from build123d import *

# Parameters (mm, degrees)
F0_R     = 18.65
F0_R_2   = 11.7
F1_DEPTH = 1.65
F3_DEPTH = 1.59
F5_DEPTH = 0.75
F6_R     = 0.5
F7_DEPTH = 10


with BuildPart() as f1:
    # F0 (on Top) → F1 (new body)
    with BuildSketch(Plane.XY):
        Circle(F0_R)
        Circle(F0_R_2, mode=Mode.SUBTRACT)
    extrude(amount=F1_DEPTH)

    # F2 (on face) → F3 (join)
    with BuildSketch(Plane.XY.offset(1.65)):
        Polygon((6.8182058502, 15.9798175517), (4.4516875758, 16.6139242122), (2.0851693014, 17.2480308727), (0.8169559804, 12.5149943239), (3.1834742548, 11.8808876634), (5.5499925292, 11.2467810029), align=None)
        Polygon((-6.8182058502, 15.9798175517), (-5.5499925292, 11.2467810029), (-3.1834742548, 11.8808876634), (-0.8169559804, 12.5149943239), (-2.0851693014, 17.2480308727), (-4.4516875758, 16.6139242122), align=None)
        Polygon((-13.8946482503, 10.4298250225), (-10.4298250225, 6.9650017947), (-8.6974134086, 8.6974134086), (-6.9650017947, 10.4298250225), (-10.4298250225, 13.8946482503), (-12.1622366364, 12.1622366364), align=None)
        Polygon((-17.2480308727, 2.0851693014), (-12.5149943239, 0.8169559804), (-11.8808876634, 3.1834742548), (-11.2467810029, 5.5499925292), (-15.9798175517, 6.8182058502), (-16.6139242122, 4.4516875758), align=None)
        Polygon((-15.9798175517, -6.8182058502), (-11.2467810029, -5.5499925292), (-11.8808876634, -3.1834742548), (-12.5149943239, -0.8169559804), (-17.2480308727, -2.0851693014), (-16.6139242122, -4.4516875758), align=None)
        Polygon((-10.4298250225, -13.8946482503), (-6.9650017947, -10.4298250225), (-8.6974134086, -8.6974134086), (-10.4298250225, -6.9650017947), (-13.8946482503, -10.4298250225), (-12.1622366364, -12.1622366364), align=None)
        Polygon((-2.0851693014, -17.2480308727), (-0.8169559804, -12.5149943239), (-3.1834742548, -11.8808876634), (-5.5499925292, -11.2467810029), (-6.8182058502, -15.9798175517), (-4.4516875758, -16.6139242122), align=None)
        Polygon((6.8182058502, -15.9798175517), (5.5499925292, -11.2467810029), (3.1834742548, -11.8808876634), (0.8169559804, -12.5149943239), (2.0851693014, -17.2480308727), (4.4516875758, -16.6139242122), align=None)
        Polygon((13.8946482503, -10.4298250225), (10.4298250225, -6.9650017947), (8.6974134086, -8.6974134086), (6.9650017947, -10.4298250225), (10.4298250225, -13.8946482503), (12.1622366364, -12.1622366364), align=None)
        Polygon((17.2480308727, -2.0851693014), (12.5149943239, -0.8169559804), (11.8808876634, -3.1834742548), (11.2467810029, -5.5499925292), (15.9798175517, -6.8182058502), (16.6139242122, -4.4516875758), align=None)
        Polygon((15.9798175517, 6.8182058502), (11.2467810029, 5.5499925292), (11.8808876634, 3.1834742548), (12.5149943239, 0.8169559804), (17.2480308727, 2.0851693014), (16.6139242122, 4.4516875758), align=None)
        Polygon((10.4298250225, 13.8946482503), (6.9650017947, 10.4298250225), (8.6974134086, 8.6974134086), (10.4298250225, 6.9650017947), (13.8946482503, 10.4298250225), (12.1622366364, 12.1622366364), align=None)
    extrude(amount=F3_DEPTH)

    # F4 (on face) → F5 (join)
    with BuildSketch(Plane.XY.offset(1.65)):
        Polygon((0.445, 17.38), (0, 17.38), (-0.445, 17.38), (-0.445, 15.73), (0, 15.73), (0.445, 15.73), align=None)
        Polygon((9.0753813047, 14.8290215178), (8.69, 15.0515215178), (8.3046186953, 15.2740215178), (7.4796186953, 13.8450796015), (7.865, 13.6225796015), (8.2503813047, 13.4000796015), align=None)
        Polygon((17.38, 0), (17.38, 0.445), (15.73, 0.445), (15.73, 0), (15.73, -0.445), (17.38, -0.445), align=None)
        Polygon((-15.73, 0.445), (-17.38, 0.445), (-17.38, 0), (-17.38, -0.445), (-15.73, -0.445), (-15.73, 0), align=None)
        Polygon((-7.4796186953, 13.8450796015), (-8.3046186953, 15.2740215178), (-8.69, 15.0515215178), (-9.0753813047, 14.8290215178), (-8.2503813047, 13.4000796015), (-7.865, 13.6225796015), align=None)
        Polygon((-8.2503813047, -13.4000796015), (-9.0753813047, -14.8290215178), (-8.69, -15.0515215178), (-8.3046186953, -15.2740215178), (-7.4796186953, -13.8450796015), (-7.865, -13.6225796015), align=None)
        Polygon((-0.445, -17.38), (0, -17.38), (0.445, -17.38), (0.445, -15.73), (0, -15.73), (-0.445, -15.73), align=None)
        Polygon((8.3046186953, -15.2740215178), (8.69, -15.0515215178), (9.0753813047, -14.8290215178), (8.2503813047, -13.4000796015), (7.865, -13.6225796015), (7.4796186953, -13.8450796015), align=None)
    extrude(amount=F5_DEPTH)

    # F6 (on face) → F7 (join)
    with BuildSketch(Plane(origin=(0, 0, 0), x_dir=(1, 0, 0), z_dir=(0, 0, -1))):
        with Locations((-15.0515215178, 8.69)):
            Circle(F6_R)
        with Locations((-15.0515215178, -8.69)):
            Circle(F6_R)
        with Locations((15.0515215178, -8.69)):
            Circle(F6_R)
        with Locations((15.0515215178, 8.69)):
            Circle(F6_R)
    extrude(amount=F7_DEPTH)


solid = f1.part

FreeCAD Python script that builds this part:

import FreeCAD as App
import Part
import Sketcher

V = App.Vector
Q = App.Units.Quantity

doc = App.newDocument("Part")
body = doc.addObject("PartDesign::Body", "Body")

# Sketch on XY plane
sketch1 = body.newObject("Sketcher::SketchObject", "Sketch")
sketch1.AttachmentSupport = (doc.getObject("XY_Plane"), [""])
sketch1.MapMode = "FlatFace"
sketch1.addGeometry([
    Part.Circle(V(0, 0, 0), V(0, 0, 1), 18.65),
    Part.Circle(V(0, 0, 0), V(0, 0, 1), 11.7),
], False)
sketch1.addConstraint([
    Sketcher.Constraint("Coincident", 0, 3, -1, 1),
    Sketcher.Constraint("Coincident", 1, 3, -1, 1),
    Sketcher.Constraint("Diameter", 0, 37.3),
    Sketcher.Constraint("Diameter", 1, 23.4),
])
pad1 = body.newObject("PartDesign::Pad", "Pad")
pad1.Profile = sketch1
pad1.Length = 1.65

# Sketch on XY plane
sketch2 = body.newObject("Sketcher::SketchObject", "Sketch001")
sketch2.AttachmentSupport = (doc.getObject("XY_Plane"), [""])
sketch2.MapMode = "FlatFace"
sketch2.AttachmentOffset = App.Placement(V(0, 0, 1.65), App.Rotation())
sketch2.addGeometry([
    Part.LineSegment(V(6.818206, 15.979818, 0), V(2.085169, 17.248031, 0)),  # 0
    Part.LineSegment(V(2.085169, 17.248031, 0), V(0.816956, 12.514994, 0)),  # 1
    Part.LineSegment(V(0.816956, 12.514994, 0), V(5.549993, 11.246781, 0)),  # 2
    Part.LineSegment(V(5.549993, 11.246781, 0), V(6.818206, 15.979818, 0)),  # 3
    Part.LineSegment(V(-6.818206, 15.979818, 0), V(-5.549993, 11.246781, 0)),  # 4
    Part.LineSegment(V(-5.549993, 11.246781, 0), V(-0.816956, 12.514994, 0)),  # 5
    Part.LineSegment(V(-0.816956, 12.514994, 0), V(-2.085169, 17.248031, 0)),  # 6
    Part.LineSegment(V(-2.085169, 17.248031, 0), V(-6.818206, 15.979818, 0)),  # 7
    Part.LineSegment(V(-13.894648, 10.429825, 0), V(-10.429825, 6.965002, 0)),  # 8
    Part.LineSegment(V(-10.429825, 6.965002, 0), V(-6.965002, 10.429825, 0)),  # 9
    Part.LineSegment(V(-6.965002, 10.429825, 0), V(-10.429825, 13.894648, 0)),  # 10
    Part.LineSegment(V(-10.429825, 13.894648, 0), V(-13.894648, 10.429825, 0)),  # 11
    Part.LineSegment(V(-17.248031, 2.085169, 0), V(-12.514994, 0.816956, 0)),  # 12
    Part.LineSegment(V(-12.514994, 0.816956, 0), V(-11.246781, 5.549993, 0)),  # 13
    Part.LineSegment(V(-11.246781, 5.549993, 0), V(-15.979818, 6.818206, 0)),  # 14
    Part.LineSegment(V(-15.979818, 6.818206, 0), V(-17.248031, 2.085169, 0)),  # 15
    Part.LineSegment(V(-15.979818, -6.818206, 0), V(-11.246781, -5.549993, 0)),  # 16
    Part.LineSegment(V(-11.246781, -5.549993, 0), V(-12.514994, -0.816956, 0)),  # 17
    Part.LineSegment(V(-12.514994, -0.816956, 0), V(-17.248031, -2.085169, 0)),  # 18
    Part.LineSegment(V(-17.248031, -2.085169, 0), V(-15.979818, -6.818206, 0)),  # 19
    Part.LineSegment(V(-10.429825, -13.894648, 0), V(-6.965002, -10.429825, 0)),  # 20
    Part.LineSegment(V(-6.965002, -10.429825, 0), V(-10.429825, -6.965002, 0)),  # 21
    Part.LineSegment(V(-10.429825, -6.965002, 0), V(-13.894648, -10.429825, 0)),  # 22
    Part.LineSegment(V(-13.894648, -10.429825, 0), V(-10.429825, -13.894648, 0)),  # 23
    Part.LineSegment(V(-2.085169, -17.248031, 0), V(-0.816956, -12.514994, 0)),  # 24
    Part.LineSegment(V(-0.816956, -12.514994, 0), V(-5.549993, -11.246781, 0)),  # 25
    Part.LineSegment(V(-5.549993, -11.246781, 0), V(-6.818206, -15.979818, 0)),  # 26
    Part.LineSegment(V(-6.818206, -15.979818, 0), V(-2.085169, -17.248031, 0)),  # 27
    Part.LineSegment(V(6.818206, -15.979818, 0), V(5.549993, -11.246781, 0)),  # 28
    Part.LineSegment(V(5.549993, -11.246781, 0), V(0.816956, -12.514994, 0)),  # 29
    Part.LineSegment(V(0.816956, -12.514994, 0), V(2.085169, -17.248031, 0)),  # 30
    Part.LineSegment(V(2.085169, -17.248031, 0), V(6.818206, -15.979818, 0)),  # 31
    Part.LineSegment(V(13.894648, -10.429825, 0), V(10.429825, -6.965002, 0)),  # 32
    Part.LineSegment(V(10.429825, -6.965002, 0), V(6.965002, -10.429825, 0)),  # 33
    Part.LineSegment(V(6.965002, -10.429825, 0), V(10.429825, -13.894648, 0)),  # 34
    Part.LineSegment(V(10.429825, -13.894648, 0), V(13.894648, -10.429825, 0)),  # 35
    Part.LineSegment(V(17.248031, -2.085169, 0), V(12.514994, -0.816956, 0)),  # 36
    Part.LineSegment(V(12.514994, -0.816956, 0), V(11.246781, -5.549993, 0)),  # 37
    Part.LineSegment(V(11.246781, -5.549993, 0), V(15.979818, -6.818206, 0)),  # 38
    Part.LineSegment(V(15.979818, -6.818206, 0), V(17.248031, -2.085169, 0)),  # 39
    Part.LineSegment(V(15.979818, 6.818206, 0), V(11.246781, 5.549993, 0)),  # 40
    Part.LineSegment(V(11.246781, 5.549993, 0), V(12.514994, 0.816956, 0)),  # 41
    Part.LineSegment(V(12.514994, 0.816956, 0), V(17.248031, 2.085169, 0)),  # 42
    Part.LineSegment(V(17.248031, 2.085169, 0), V(15.979818, 6.818206, 0)),  # 43
    Part.LineSegment(V(10.429825, 13.894648, 0), V(6.965002, 10.429825, 0)),  # 44
    Part.LineSegment(V(6.965002, 10.429825, 0), V(10.429825, 6.965002, 0)),  # 45
    Part.LineSegment(V(10.429825, 6.965002, 0), V(13.894648, 10.429825, 0)),  # 46
    Part.LineSegment(V(13.894648, 10.429825, 0), V(10.429825, 13.894648, 0)),  # 47
], False)
sketch2.addConstraint([
    Sketcher.Constraint("Coincident", 0, 2, 1, 1),
    Sketcher.Constraint("Coincident", 1, 2, 2, 1),
    Sketcher.Constraint("Coincident", 2, 2, 3, 1),
    Sketcher.Constraint("Coincident", 3, 2, 0, 1),
    Sketcher.Constraint("Coincident", 4, 2, 5, 1),
    Sketcher.Constraint("Coincident", 5, 2, 6, 1),
    Sketcher.Constraint("Coincident", 6, 2, 7, 1),
    Sketcher.Constraint("Coincident", 7, 2, 4, 1),
    Sketcher.Constraint("Coincident", 8, 2, 9, 1),
    Sketcher.Constraint("Coincident", 9, 2, 10, 1),
    Sketcher.Constraint("Coincident", 10, 2, 11, 1),
    Sketcher.Constraint("Coincident", 11, 2, 8, 1),
    Sketcher.Constraint("Coincident", 12, 2, 13, 1),
    Sketcher.Constraint("Coincident", 13, 2, 14, 1),
    Sketcher.Constraint("Coincident", 14, 2, 15, 1),
    Sketcher.Constraint("Coincident", 15, 2, 12, 1),
    Sketcher.Constraint("Coincident", 16, 2, 17, 1),
    Sketcher.Constraint("Coincident", 17, 2, 18, 1),
    Sketcher.Constraint("Coincident", 18, 2, 19, 1),
    Sketcher.Constraint("Coincident", 19, 2, 16, 1),
    Sketcher.Constraint("Coincident", 20, 2, 21, 1),
    Sketcher.Constraint("Coincident", 21, 2, 22, 1),
    Sketcher.Constraint("Coincident", 22, 2, 23, 1),
    Sketcher.Constraint("Coincident", 23, 2, 20, 1),
    Sketcher.Constraint("Coincident", 24, 2, 25, 1),
    Sketcher.Constraint("Coincident", 25, 2, 26, 1),
    Sketcher.Constraint("Coincident", 26, 2, 27, 1),
    Sketcher.Constraint("Coincident", 27, 2, 24, 1),
    Sketcher.Constraint("Coincident", 28, 2, 29, 1),
    Sketcher.Constraint("Coincident", 29, 2, 30, 1),
    Sketcher.Constraint("Coincident", 30, 2, 31, 1),
    Sketcher.Constraint("Coincident", 31, 2, 28, 1),
    Sketcher.Constraint("Coincident", 32, 2, 33, 1),
    Sketcher.Constraint("Coincident", 33, 2, 34, 1),
    Sketcher.Constraint("Coincident", 34, 2, 35, 1),
    Sketcher.Constraint("Coincident", 35, 2, 32, 1),
    Sketcher.Constraint("Coincident", 36, 2, 37, 1),
    Sketcher.Constraint("Coincident", 37, 2, 38, 1),
    Sketcher.Constraint("Coincident", 38, 2, 39, 1),
    Sketcher.Constraint("Coincident", 39, 2, 36, 1),
    Sketcher.Constraint("Coincident", 40, 2, 41, 1),
    Sketcher.Constraint("Coincident", 41, 2, 42, 1),
    Sketcher.Constraint("Coincident", 42, 2, 43, 1),
    Sketcher.Constraint("Coincident", 43, 2, 40, 1),
    Sketcher.Constraint("Coincident", 44, 2, 45, 1),
    Sketcher.Constraint("Coincident", 45, 2, 46, 1),
    Sketcher.Constraint("Coincident", 46, 2, 47, 1),
    Sketcher.Constraint("Coincident", 47, 2, 44, 1),
    Sketcher.Constraint("Symmetric", 1, 2, 24, 2, -1, 1),
    Sketcher.Constraint("Symmetric", 2, 2, 25, 2, -1, 1),
    Sketcher.Constraint("Symmetric", 3, 2, 26, 2, -1, 1),
    Sketcher.Constraint("Symmetric", 0, 2, 27, 2, -1, 1),
    Sketcher.Constraint("Symmetric", 4, 2, 28, 2, -1, 1),
    Sketcher.Constraint("Symmetric", 5, 2, 29, 2, -1, 1),
    Sketcher.Constraint("Symmetric", 6, 2, 30, 2, -1, 1),
    Sketcher.Constraint("Symmetric", 7, 2, 31, 2, -1, 1),
    Sketcher.Constraint("Symmetric", 8, 2, 32, 2, -1, 1),
    Sketcher.Constraint("Symmetric", 9, 2, 33, 2, -1, 1),
    Sketcher.Constraint("Symmetric", 10, 2, 34, 2, -1, 1),
    Sketcher.Constraint("Symmetric", 11, 2, 35, 2, -1, 1),
    Sketcher.Constraint("Symmetric", 12, 2, 36, 2, -1, 1),
    Sketcher.Constraint("Symmetric", 13, 2, 37, 2, -1, 1),
    Sketcher.Constraint("Symmetric", 14, 2, 38, 2, -1, 1),
    Sketcher.Constraint("Symmetric", 15, 2, 39, 2, -1, 1),
    Sketcher.Constraint("Symmetric", 16, 2, 40, 2, -1, 1),
    Sketcher.Constraint("Symmetric", 17, 2, 41, 2, -1, 1),
    Sketcher.Constraint("Symmetric", 18, 2, 42, 2, -1, 1),
    Sketcher.Constraint("Symmetric", 19, 2, 43, 2, -1, 1),
    Sketcher.Constraint("Symmetric", 20, 2, 44, 2, -1, 1),
    Sketcher.Constraint("Symmetric", 21, 2, 45, 2, -1, 1),
    Sketcher.Constraint("Symmetric", 22, 2, 46, 2, -1, 1),
    Sketcher.Constraint("Symmetric", 23, 2, 47, 2, -1, 1),
    Sketcher.Constraint("Symmetric", 2, 2, 4, 2, -2),
    Sketcher.Constraint("Symmetric", 1, 2, 5, 2, -2),
    Sketcher.Constraint("Symmetric", 0, 2, 6, 2, -2),
    Sketcher.Constraint("Symmetric", 3, 2, 7, 2, -2),
    Sketcher.Constraint("Symmetric", 21, 2, 32, 2, -2),
    Sketcher.Constraint("Symmetric", 20, 2, 33, 2, -2),
    Sketcher.Constraint("Symmetric", 23, 2, 34, 2, -2),
    Sketcher.Constraint("Symmetric", 22, 2, 35, 2, -2),
    Sketcher.Constraint("Symmetric", 17, 2, 36, 2, -2),
    Sketcher.Constraint("Symmetric", 16, 2, 37, 2, -2),
    Sketcher.Constraint("Symmetric", 19, 2, 38, 2, -2),
    Sketcher.Constraint("Symmetric", 18, 2, 39, 2, -2),
    Sketcher.Constraint("Perpendicular", 0, 1),
    Sketcher.Constraint("Perpendicular", 1, 2),
    Sketcher.Constraint("Perpendicular", 2, 3),
    Sketcher.Constraint("Perpendicular", 8, 9),
    Sketcher.Constraint("Perpendicular", 9, 10),
    Sketcher.Constraint("Perpendicular", 10, 11),
    Sketcher.Constraint("Perpendicular", 3, 12),
    Sketcher.Constraint("Perpendicular", 12, 13),
    Sketcher.Constraint("Perpendicular", 13, 14),
    Sketcher.Constraint("Perpendicular", 14, 15),
    Sketcher.Constraint("Parallel", 11, 20),
    Sketcher.Constraint("Horizontal", 9, 2, 11, 2),
    Sketcher.Constraint("Equal", 0, 1),
    Sketcher.Constraint("Equal", 7, 8),
    Sketcher.Constraint("Equal", 11, 12),
    Sketcher.Constraint("Equal", 12, 13),
    Sketcher.Constraint("Angle", 0, Q("165 deg")),
    Sketcher.Constraint("Distance", 0, 4.9),
    Sketcher.Constraint("DistanceY", -1, 1, 8, 2, 6.965002),
    Sketcher.Constraint("DistanceX", 9, 2, -1, 1, 6.965002),
    Sketcher.Constraint("DistanceX", 12, 2, 4, 2, 6.965002),
    Sketcher.Constraint("DistanceY", 24, 2, 16, 2, 6.965002),
    Sketcher.Constraint("DistanceX", 4, 2, 3, 2, 12.368198),
    Sketcher.Constraint("DistanceY", 16, 2, 14, 2, 12.368198),
])
pad2 = body.newObject("PartDesign::Pad", "Pad001")
pad2.Profile = sketch2
pad2.Length = 1.59

# Sketch on XY plane
sketch3 = body.newObject("Sketcher::SketchObject", "Sketch002")
sketch3.AttachmentSupport = (doc.getObject("XY_Plane"), [""])
sketch3.MapMode = "FlatFace"
sketch3.AttachmentOffset = App.Placement(V(0, 0, 1.65), App.Rotation())
sketch3.addGeometry([
    Part.LineSegment(V(0.445, 17.38, 0), V(-0.445, 17.38, 0)),  # 0
    Part.LineSegment(V(-0.445, 17.38, 0), V(-0.445, 15.73, 0)),  # 1
    Part.LineSegment(V(-0.445, 15.73, 0), V(0.445, 15.73, 0)),  # 2
    Part.LineSegment(V(0.445, 15.73, 0), V(0.445, 17.38, 0)),  # 3
    Part.LineSegment(V(9.075381, 14.829022, 0), V(8.304619, 15.274022, 0)),  # 4
    Part.LineSegment(V(8.304619, 15.274022, 0), V(7.479619, 13.84508, 0)),  # 5
    Part.LineSegment(V(7.479619, 13.84508, 0), V(8.250381, 13.40008, 0)),  # 6
    Part.LineSegment(V(8.250381, 13.40008, 0), V(9.075381, 14.829022, 0)),  # 7
    Part.LineSegment(V(17.38, 0.445, 0), V(15.73, 0.445, 0)),  # 8
    Part.LineSegment(V(15.73, 0.445, 0), V(15.73, -0.445, 0)),  # 9
    Part.LineSegment(V(15.73, -0.445, 0), V(17.38, -0.445, 0)),  # 10
    Part.LineSegment(V(17.38, -0.445, 0), V(17.38, 0.445, 0)),  # 11
    Part.LineSegment(V(-15.73, 0.445, 0), V(-17.38, 0.445, 0)),  # 12
    Part.LineSegment(V(-17.38, 0.445, 0), V(-17.38, -0.445, 0)),  # 13
    Part.LineSegment(V(-17.38, -0.445, 0), V(-15.73, -0.445, 0)),  # 14
    Part.LineSegment(V(-15.73, -0.445, 0), V(-15.73, 0.445, 0)),  # 15
    Part.LineSegment(V(-7.479619, 13.84508, 0), V(-8.304619, 15.274022, 0)),  # 16
    Part.LineSegment(V(-8.304619, 15.274022, 0), V(-9.075381, 14.829022, 0)),  # 17
    Part.LineSegment(V(-9.075381, 14.829022, 0), V(-8.250381, 13.40008, 0)),  # 18
    Part.LineSegment(V(-8.250381, 13.40008, 0), V(-7.479619, 13.84508, 0)),  # 19
    Part.LineSegment(V(-8.250381, -13.40008, 0), V(-9.075381, -14.829022, 0)),  # 20
    Part.LineSegment(V(-9.075381, -14.829022, 0), V(-8.304619, -15.274022, 0)),  # 21
    Part.LineSegment(V(-8.304619, -15.274022, 0), V(-7.479619, -13.84508, 0)),  # 22
    Part.LineSegment(V(-7.479619, -13.84508, 0), V(-8.250381, -13.40008, 0)),  # 23
    Part.LineSegment(V(-0.445, -17.38, 0), V(0.445, -17.38, 0)),  # 24
    Part.LineSegment(V(0.445, -17.38, 0), V(0.445, -15.73, 0)),  # 25
    Part.LineSegment(V(0.445, -15.73, 0), V(-0.445, -15.73, 0)),  # 26
    Part.LineSegment(V(-0.445, -15.73, 0), V(-0.445, -17.38, 0)),  # 27
    Part.LineSegment(V(8.304619, -15.274022, 0), V(9.075381, -14.829022, 0)),  # 28
    Part.LineSegment(V(9.075381, -14.829022, 0), V(8.250381, -13.40008, 0)),  # 29
    Part.LineSegment(V(8.250381, -13.40008, 0), V(7.479619, -13.84508, 0)),  # 30
    Part.LineSegment(V(7.479619, -13.84508, 0), V(8.304619, -15.274022, 0)),  # 31
], False)
sketch3.addConstraint([
    Sketcher.Constraint("Coincident", 0, 2, 1, 1),
    Sketcher.Constraint("Coincident", 1, 2, 2, 1),
    Sketcher.Constraint("Coincident", 2, 2, 3, 1),
    Sketcher.Constraint("Coincident", 3, 2, 0, 1),
    Sketcher.Constraint("Coincident", 4, 2, 5, 1),
    Sketcher.Constraint("Coincident", 5, 2, 6, 1),
    Sketcher.Constraint("Coincident", 6, 2, 7, 1),
    Sketcher.Constraint("Coincident", 7, 2, 4, 1),
    Sketcher.Constraint("Coincident", 8, 2, 9, 1),
    Sketcher.Constraint("Coincident", 9, 2, 10, 1),
    Sketcher.Constraint("Coincident", 10, 2, 11, 1),
    Sketcher.Constraint("Coincident", 11, 2, 8, 1),
    Sketcher.Constraint("Coincident", 12, 2, 13, 1),
    Sketcher.Constraint("Coincident", 13, 2, 14, 1),
    Sketcher.Constraint("Coincident", 14, 2, 15, 1),
    Sketcher.Constraint("Coincident", 15, 2, 12, 1),
    Sketcher.Constraint("Coincident", 16, 2, 17, 1),
    Sketcher.Constraint("Coincident", 17, 2, 18, 1),
    Sketcher.Constraint("Coincident", 18, 2, 19, 1),
    Sketcher.Constraint("Coincident", 19, 2, 16, 1),
    Sketcher.Constraint("Coincident", 20, 2, 21, 1),
    Sketcher.Constraint("Coincident", 21, 2, 22, 1),
    Sketcher.Constraint("Coincident", 22, 2, 23, 1),
    Sketcher.Constraint("Coincident", 23, 2, 20, 1),
    Sketcher.Constraint("Coincident", 24, 2, 25, 1),
    Sketcher.Constraint("Coincident", 25, 2, 26, 1),
    Sketcher.Constraint("Coincident", 26, 2, 27, 1),
    Sketcher.Constraint("Coincident", 27, 2, 24, 1),
    Sketcher.Constraint("Coincident", 28, 2, 29, 1),
    Sketcher.Constraint("Coincident", 29, 2, 30, 1),
    Sketcher.Constraint("Coincident", 30, 2, 31, 1),
    Sketcher.Constraint("Coincident", 31, 2, 28, 1),
    Sketcher.Constraint("Horizontal", 0),
    Sketcher.Constraint("Vertical", 1),
    Sketcher.Constraint("Horizontal", 2),
    Sketcher.Constraint("Vertical", 3),
    Sketcher.Constraint("Horizontal", 8),
    Sketcher.Constraint("Vertical", 9),
    Sketcher.Constraint("Horizontal", 10),
    Sketcher.Constraint("Vertical", 11),
    Sketcher.Constraint("Horizontal", 12),
    Sketcher.Constraint("Vertical", 13),
    Sketcher.Constraint("Horizontal", 14),
    Sketcher.Constraint("Vertical", 15),
    Sketcher.Constraint("Horizontal", 24),
    Sketcher.Constraint("Vertical", 25),
    Sketcher.Constraint("Horizontal", 26),
    Sketcher.Constraint("Vertical", 27),
    Sketcher.Constraint("Symmetric", 10, 2, 12, 2, -1, 1),
    Sketcher.Constraint("Symmetric", 8, 2, 14, 2, -1, 1),
    Sketcher.Constraint("Symmetric", 7, 2, 20, 2, -1, 1),
    Sketcher.Constraint("Symmetric", 4, 2, 21, 2, -1, 1),
    Sketcher.Constraint("Symmetric", 5, 2, 22, 2, -1, 1),
    Sketcher.Constraint("Symmetric", 6, 2, 23, 2, -1, 1),
    Sketcher.Constraint("Symmetric", 0, 2, 24, 2, -1, 1),
    Sketcher.Constraint("Symmetric", 2, 2, 26, 2, -1, 1),
    Sketcher.Constraint("Symmetric", 17, 2, 28, 2, -1, 1),
    Sketcher.Constraint("Symmetric", 18, 2, 29, 2, -1, 1),
    Sketcher.Constraint("Symmetric", 19, 2, 30, 2, -1, 1),
    Sketcher.Constraint("Symmetric", 16, 2, 31, 2, -1, 1),
    Sketcher.Constraint("Symmetric", 4, 2, 16, 2, -2),
    Sketcher.Constraint("Symmetric", 7, 2, 17, 2, -2),
    Sketcher.Constraint("Symmetric", 6, 2, 18, 2, -2),
    Sketcher.Constraint("Symmetric", 5, 2, 19, 2, -2),
    Sketcher.Constraint("Perpendicular", 4, 5),
    Sketcher.Constraint("Perpendicular", 5, 6),
    Sketcher.Constraint("Perpendicular", 6, 7),
    Sketcher.Constraint("Horizontal", 11, 2, 12, 2),
    Sketcher.Constraint("Vertical", 3, 2, 24, 2),
    Sketcher.Constraint("Equal", 14, 1),
    Sketcher.Constraint("Equal", 26, 9),
    Sketcher.Constraint("Angle", 4, Q("150 deg")),
    Sketcher.Constraint("DistanceX", 0, 2, 0, 1, 0.89),
    Sketcher.Constraint("DistanceX", 8, 2, 8, 1, 1.65),
    Sketcher.Constraint("Distance", 4, 0.89),
    Sketcher.Constraint("Distance", 5, 1.65),
    Sketcher.Constraint("DistanceY", -1, 1, 0, 2, 17.38),
    Sketcher.Constraint("DistanceX", -1, 1, 8, 2, 15.73),
    Sketcher.Constraint("DistanceY", 20, 2, 18, 2, 28.229101),
    Sketcher.Constraint("DistanceX", -1, 1, 4, 2, 8.304619),
])
pad3 = body.newObject("PartDesign::Pad", "Pad002")
pad3.Profile = sketch3
pad3.Length = 0.75

# Sketch on XY plane
sketch4 = body.newObject("Sketcher::SketchObject", "Sketch003")
sketch4.AttachmentSupport = (doc.getObject("XY_Plane"), [""])
sketch4.MapMode = "FlatFace"
sketch4.addGeometry([
    Part.Circle(V(-15.051522, -8.69, 0), V(0, 0, 1), 0.5),
    Part.Circle(V(-15.051522, 8.69, 0), V(0, 0, 1), 0.5),
    Part.Circle(V(15.051522, 8.69, 0), V(0, 0, 1), 0.5),
    Part.Circle(V(15.051522, -8.69, 0), V(0, 0, 1), 0.5),
], False)
sketch4.addConstraint([
    Sketcher.Constraint("Equal", 0, 1),
    Sketcher.Constraint("Equal", 1, 2),
    Sketcher.Constraint("Equal", 2, 3),
    Sketcher.Constraint("Symmetric", 0, 3, 2, 3, -1, 1),
    Sketcher.Constraint("Symmetric", 1, 3, 3, 3, -1, 1),
    Sketcher.Constraint("Symmetric", 1, 3, 2, 3, -2),
    Sketcher.Constraint("Diameter", 0, 1.0),
    Sketcher.Constraint("DistanceY", 0, 3, -1, 1, 8.69),
    Sketcher.Constraint("DistanceX", 0, 3, -1, 1, 15.051522),
])
pad4 = body.newObject("PartDesign::Pad", "Pad003")
pad4.Profile = sketch4
pad4.Length = 10
pad4.Reversed = True

doc.recompute()
